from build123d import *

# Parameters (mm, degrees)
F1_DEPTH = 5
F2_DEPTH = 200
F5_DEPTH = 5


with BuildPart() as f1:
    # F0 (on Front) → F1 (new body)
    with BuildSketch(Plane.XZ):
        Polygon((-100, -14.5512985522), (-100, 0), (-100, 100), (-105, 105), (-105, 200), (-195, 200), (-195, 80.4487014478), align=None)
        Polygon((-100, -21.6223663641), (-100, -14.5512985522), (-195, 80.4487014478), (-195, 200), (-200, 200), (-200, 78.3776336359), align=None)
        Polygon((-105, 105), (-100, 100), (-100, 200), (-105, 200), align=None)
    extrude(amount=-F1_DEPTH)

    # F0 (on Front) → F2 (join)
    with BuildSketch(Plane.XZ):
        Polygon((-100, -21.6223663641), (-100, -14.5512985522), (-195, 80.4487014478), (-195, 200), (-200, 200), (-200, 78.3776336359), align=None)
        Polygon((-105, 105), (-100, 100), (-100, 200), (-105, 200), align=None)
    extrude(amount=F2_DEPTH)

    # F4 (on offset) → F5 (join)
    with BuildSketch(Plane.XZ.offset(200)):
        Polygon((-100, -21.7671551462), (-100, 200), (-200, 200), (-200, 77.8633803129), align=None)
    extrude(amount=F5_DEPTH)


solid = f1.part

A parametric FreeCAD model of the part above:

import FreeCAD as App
import Part
import Sketcher
from FreeCAD import Vector
Q = App.Units.Quantity


def add_polygon(sketch, points):
    """Adds a closed chain of lines whose ends are joined by coincident constraints."""
    first, n = sketch.GeometryCount, len(points)
    for a, b in zip(points, points[1:] + points[:1]):
        sketch.addGeometry(Part.LineSegment(App.Vector(*a, 0), App.Vector(*b, 0)), False)
    for i in range(n):
        sketch.addConstraint(Sketcher.Constraint("Coincident", first + i, 2, first + (i + 1) % n, 1))

doc = App.newDocument("Part")
body = doc.addObject("PartDesign::Body", "Body")

sketch1 = body.newObject("Sketcher::SketchObject", "Sketch")
sketch1.AttachmentSupport = (doc.getObject("XZ_Plane"), [""])
sketch1.MapMode = "FlatFace"
add_polygon(sketch1, [(-200, 200), (-200, 78), (-100, -22), (-100, 200)])
sketch1.addConstraint([
    Sketcher.Constraint("Vertical", 0),
    Sketcher.Constraint("Vertical", 2),
    Sketcher.Constraint("Horizontal", 3),
    Sketcher.Constraint("DistanceX", 3, 2, 3, 1, Q("100 mm")),
    Sketcher.Constraint("Angle", 1, Q("-45 deg")),
    Sketcher.Constraint("DistanceX", 0, 2, -1, 1, Q("200 mm")),
    Sketcher.Constraint("DistanceY", -1, 1, 2, 2, Q("200 mm")),
    Sketcher.Constraint("DistanceY", 0, 2, 0, 1, Q("121.622366 mm")),
])
pad1 = body.newObject("PartDesign::Pad", "Pad")
pad1.Profile = sketch1
pad1.Length = 5
pad1.Reversed = True

sketch2 = body.newObject("Sketcher::SketchObject", "Sketch001")
sketch2.AttachmentSupport = (doc.getObject("XZ_Plane"), [""])
sketch2.MapMode = "FlatFace"
add_polygon(sketch2, [(-100, -22), (-100, -15), (-195, 80), (-195, 200), (-200, 200), (-200, 78)])
add_polygon(sketch2, [(-105, 105), (-100, 100), (-100, 200), (-105, 200)])
sketch2.addConstraint([
    Sketcher.Constraint("Vertical", 0),
    Sketcher.Constraint("Vertical", 2),
    Sketcher.Constraint("Horizontal", 3),
    Sketcher.Constraint("Vertical", 4),
    Sketcher.Constraint("Vertical", 7),
    Sketcher.Constraint("Horizontal", 8),
    Sketcher.Constraint("Vertical", 9),
    Sketcher.Constraint("Parallel", 1, 5),
    Sketcher.Constraint("Parallel", 5, 6),
    Sketcher.Constraint("Horizontal", 3, 2, 7, 2),
    Sketcher.Constraint("Vertical", 5, 2, 6, 2),
    Sketcher.Constraint("Equal", 3, 8),
    Sketcher.Constraint("DistanceX", 3, 2, 3, 1, Q("5 mm")),
    Sketcher.Constraint("DistanceY", 7, 1, 7, 2, Q("100 mm")),
    Sketcher.Constraint("DistanceY", 9, 2, 9, 1, Q("95 mm")),
    Sketcher.Constraint("DistanceX", 0, 2, -1, 1, Q("100 mm")),
    Sketcher.Constraint("DistanceX", 1, 2, -1, 1, Q("195 mm")),
    Sketcher.Constraint("DistanceY", -1, 1, 2, 2, Q("200 mm")),
    Sketcher.Constraint("DistanceY", 2, 1, 2, 2, Q("119.551299 mm")),
    Sketcher.Constraint("DistanceY", 0, 1, 0, 2, Q("7.071068 mm")),
])
pad2 = body.newObject("PartDesign::Pad", "Pad001")
pad2.Profile = sketch2
pad2.Length = 200

sketch3 = body.newObject("Sketcher::SketchObject", "Sketch002")
sketch3.AttachmentSupport = (doc.getObject("XZ_Plane"), [""])
sketch3.MapMode = "FlatFace"
sketch3.AttachmentOffset = App.Placement(Vector(0, 0, 200), App.Rotation())
add_polygon(sketch3, [(-100, -22), (-100, 200), (-200, 200), (-200, 78)])
sketch3.addConstraint([
    Sketcher.Constraint("Vertical", 0),
    Sketcher.Constraint("Horizontal", 1),
    Sketcher.Constraint("Vertical", 2),
    Sketcher.Constraint("DistanceX", 1, 2, 1, 1, Q("100 mm")),
    Sketcher.Constraint("DistanceX", 0, 2, -1, 1, Q("100 mm")),
    Sketcher.Constraint("DistanceY", -1, 1, 0, 2, Q("200 mm")),
    Sketcher.Constraint("DistanceY", 2, 2, 2, 1, Q("122.13662 mm")),
    Sketcher.Constraint("DistanceY", 0, 1, 0, 2, Q("221.767155 mm")),
])
pad3 = body.newObject("PartDesign::Pad", "Pad002")
pad3.Profile = sketch3
pad3.Length = 5

doc.recompute()
